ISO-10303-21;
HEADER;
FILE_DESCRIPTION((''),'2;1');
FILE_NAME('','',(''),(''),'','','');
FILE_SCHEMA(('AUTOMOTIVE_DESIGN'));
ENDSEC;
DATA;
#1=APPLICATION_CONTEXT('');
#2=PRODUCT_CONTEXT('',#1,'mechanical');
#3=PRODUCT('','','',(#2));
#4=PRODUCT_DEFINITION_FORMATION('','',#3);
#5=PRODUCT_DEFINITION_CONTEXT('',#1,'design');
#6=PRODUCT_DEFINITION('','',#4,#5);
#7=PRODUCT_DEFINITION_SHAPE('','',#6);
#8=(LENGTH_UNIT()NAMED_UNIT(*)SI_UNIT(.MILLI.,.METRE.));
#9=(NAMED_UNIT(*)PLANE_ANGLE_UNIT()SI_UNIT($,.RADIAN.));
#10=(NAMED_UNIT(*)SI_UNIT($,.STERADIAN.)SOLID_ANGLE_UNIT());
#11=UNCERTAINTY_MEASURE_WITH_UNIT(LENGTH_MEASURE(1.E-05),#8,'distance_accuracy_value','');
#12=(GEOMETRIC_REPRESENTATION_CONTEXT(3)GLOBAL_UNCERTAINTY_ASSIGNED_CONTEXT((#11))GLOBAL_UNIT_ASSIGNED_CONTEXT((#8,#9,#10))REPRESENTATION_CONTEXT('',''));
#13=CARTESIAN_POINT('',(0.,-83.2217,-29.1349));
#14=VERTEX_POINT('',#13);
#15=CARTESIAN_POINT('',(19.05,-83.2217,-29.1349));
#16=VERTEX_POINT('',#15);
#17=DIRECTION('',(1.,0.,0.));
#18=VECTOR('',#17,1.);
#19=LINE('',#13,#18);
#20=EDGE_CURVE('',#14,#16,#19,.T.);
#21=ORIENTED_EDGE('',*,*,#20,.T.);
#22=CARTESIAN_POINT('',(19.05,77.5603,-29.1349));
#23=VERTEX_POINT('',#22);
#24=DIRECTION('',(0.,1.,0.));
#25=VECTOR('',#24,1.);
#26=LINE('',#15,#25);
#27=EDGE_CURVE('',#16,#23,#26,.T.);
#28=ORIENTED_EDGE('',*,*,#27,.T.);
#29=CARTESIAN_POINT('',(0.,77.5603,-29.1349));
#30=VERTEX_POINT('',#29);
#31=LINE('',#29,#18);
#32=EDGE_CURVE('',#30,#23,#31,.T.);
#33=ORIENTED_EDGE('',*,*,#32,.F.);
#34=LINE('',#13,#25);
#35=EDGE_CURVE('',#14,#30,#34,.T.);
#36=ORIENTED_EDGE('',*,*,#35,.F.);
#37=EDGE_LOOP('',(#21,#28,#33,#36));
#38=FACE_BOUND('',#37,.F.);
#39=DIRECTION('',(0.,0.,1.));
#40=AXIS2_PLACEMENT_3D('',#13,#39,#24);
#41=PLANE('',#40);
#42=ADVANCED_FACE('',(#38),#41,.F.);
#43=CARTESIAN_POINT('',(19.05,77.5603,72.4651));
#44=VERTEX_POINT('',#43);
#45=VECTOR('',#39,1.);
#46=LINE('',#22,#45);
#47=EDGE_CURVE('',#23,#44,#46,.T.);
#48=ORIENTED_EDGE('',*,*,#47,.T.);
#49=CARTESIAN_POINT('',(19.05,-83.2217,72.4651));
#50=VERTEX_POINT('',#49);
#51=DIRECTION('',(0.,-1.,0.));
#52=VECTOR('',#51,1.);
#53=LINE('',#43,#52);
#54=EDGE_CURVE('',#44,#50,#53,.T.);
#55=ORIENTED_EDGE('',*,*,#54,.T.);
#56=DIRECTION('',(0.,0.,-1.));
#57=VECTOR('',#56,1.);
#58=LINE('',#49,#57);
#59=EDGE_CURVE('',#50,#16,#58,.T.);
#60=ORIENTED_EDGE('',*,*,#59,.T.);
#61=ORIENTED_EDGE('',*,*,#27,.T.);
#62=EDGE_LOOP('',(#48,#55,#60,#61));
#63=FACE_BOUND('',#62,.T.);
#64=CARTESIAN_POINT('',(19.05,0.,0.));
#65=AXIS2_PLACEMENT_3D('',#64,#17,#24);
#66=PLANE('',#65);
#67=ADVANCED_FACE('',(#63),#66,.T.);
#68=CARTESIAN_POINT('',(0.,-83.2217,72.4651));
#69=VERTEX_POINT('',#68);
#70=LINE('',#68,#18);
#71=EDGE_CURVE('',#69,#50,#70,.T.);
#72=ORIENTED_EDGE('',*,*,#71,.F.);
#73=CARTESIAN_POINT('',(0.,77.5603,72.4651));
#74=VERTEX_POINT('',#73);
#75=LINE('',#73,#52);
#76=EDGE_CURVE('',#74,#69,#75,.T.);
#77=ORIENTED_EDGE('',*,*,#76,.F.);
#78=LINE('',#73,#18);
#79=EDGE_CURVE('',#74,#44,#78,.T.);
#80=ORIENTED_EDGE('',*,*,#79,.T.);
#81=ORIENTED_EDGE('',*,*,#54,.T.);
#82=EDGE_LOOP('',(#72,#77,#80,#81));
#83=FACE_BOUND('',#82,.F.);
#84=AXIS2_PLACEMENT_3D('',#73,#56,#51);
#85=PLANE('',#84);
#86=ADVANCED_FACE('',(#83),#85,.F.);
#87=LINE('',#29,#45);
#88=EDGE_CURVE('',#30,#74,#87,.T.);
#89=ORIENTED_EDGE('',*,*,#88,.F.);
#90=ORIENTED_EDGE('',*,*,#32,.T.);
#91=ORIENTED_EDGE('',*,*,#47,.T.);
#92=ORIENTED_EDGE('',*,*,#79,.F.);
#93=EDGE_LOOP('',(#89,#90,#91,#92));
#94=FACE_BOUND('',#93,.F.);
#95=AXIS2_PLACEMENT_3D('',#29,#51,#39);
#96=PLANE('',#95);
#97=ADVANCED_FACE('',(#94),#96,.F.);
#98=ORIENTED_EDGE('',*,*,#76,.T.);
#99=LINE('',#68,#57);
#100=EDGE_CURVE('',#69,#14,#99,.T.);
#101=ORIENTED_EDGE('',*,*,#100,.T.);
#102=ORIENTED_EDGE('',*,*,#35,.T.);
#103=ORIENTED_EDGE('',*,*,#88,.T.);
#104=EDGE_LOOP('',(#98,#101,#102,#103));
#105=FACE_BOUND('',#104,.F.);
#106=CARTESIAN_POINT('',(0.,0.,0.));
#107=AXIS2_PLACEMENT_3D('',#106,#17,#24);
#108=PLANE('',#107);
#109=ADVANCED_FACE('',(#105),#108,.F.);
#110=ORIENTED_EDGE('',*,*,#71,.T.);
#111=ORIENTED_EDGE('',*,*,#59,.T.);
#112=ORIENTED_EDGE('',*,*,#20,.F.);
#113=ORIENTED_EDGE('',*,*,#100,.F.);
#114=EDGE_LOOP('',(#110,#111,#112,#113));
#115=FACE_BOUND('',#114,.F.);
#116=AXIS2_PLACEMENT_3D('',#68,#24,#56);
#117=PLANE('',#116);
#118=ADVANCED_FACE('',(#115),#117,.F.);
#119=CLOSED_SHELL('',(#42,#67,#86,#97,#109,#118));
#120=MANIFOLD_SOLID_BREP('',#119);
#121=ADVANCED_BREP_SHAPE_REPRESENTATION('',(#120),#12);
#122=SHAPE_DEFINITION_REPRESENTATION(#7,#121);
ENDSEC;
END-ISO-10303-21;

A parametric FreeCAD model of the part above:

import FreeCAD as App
import Part
import Sketcher
from FreeCAD import Vector
Q = App.Units.Quantity


def add_polygon(sketch, points):
    """Adds a closed chain of lines whose ends are joined by coincident constraints."""
    first, n = sketch.GeometryCount, len(points)
    for a, b in zip(points, points[1:] + points[:1]):
        sketch.addGeometry(Part.LineSegment(App.Vector(*a, 0), App.Vector(*b, 0)), False)
    for i in range(n):
        sketch.addConstraint(Sketcher.Constraint("Coincident", first + i, 2, first + (i + 1) % n, 1))

doc = App.newDocument("Part")
body = doc.addObject("PartDesign::Body", "Body")

# Sketch on YZ plane
sketch1 = doc.addObject("Sketcher::SketchObject", "Sketch")
body.addObject(sketch1)
sketch1.AttachmentSupport = (doc.YZ_Plane, [""])
sketch1.MapMode = "FlatFace"
add_polygon(sketch1, [(77.5603, -29.1349), (77.5603, 72.4651), (-83.2217, 72.4651), (-83.2217, -29.1349)])  # lines 0-3
sketch1.addConstraint([
    Sketcher.Constraint("Vertical", 0),
    Sketcher.Constraint("Horizontal", 1),
    Sketcher.Constraint("Vertical", 2),
    Sketcher.Constraint("Horizontal", 3),
    Sketcher.Constraint("DistanceY", 0, 1, 0, 2, Q("4 in")),
    Sketcher.Constraint("DistanceX", 1, 2, 1, 1, Q("6.33 in")),
    Sketcher.Constraint("DistanceX", -1, 1, 0, 2, Q("77.5603 mm")),
    Sketcher.Constraint("DistanceY", -1, 1, 0, 2, Q("72.465 mm")),
])
pad1 = doc.addObject("PartDesign::Pad", "Pad")
body.addObject(pad1)
pad1.Profile = sketch1
pad1.Length = Q("0.75 in")

doc.recompute()
